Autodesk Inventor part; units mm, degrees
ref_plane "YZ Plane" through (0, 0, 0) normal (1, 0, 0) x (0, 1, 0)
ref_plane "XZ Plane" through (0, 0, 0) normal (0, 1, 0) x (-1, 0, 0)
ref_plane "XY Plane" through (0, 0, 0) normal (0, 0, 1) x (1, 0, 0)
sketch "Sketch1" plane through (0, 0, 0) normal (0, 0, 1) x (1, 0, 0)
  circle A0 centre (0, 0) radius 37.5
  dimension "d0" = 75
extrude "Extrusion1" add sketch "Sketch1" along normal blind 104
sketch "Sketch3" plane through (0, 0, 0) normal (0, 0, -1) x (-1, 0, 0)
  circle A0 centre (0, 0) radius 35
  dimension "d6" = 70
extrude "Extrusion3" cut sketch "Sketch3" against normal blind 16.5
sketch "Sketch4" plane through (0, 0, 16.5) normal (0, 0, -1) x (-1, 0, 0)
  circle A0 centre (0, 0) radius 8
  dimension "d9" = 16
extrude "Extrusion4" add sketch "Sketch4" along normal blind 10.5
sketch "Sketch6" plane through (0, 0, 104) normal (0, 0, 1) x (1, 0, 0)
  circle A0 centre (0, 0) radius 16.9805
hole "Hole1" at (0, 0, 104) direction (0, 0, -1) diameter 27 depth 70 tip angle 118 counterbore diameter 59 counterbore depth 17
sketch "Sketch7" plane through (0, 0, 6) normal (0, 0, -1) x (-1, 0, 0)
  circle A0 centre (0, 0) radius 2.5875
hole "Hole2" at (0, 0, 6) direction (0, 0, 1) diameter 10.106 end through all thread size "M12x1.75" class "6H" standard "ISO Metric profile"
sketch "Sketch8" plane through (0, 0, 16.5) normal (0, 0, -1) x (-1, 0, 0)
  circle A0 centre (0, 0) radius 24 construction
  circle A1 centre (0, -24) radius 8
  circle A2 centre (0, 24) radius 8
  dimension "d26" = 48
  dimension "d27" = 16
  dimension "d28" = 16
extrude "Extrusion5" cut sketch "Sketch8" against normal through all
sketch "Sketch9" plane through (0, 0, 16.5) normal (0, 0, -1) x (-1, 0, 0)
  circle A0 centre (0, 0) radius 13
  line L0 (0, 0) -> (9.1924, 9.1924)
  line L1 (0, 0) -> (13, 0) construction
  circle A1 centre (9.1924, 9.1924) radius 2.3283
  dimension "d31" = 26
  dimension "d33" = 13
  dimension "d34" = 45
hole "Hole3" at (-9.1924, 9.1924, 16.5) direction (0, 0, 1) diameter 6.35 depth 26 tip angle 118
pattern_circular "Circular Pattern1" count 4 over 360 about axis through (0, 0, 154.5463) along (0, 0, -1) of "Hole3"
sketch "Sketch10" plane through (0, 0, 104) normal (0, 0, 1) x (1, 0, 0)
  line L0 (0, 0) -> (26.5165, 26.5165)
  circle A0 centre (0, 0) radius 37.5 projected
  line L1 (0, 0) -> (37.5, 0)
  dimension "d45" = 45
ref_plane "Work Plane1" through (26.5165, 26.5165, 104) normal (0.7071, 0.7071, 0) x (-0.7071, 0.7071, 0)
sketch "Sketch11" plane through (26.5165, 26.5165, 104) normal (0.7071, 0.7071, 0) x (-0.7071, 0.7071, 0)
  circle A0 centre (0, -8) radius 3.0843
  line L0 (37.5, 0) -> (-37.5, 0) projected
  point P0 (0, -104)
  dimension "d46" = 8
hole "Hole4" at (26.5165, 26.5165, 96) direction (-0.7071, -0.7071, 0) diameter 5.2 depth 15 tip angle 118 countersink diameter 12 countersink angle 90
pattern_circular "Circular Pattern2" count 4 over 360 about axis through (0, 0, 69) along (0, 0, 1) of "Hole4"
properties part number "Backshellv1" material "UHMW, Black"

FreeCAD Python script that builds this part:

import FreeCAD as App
import Part
import Sketcher

V = App.Vector

doc = App.newDocument("Part")
params = doc.addObject("Spreadsheet::Sheet", "Params")
for row, (alias, value) in enumerate([
    ("sketch1_diameter", "75 mm"),
    ("pad1_length", "104 mm"),
    ("sketch2_diameter", "70 mm"),
    ("pocket1_length", "16.5 mm"),
    ("sketch3_diameter", "16 mm"),
    ("pad2_length", "10.5 mm"),
    ("sketch4_diameter", "27 mm"),
    ("hole_diameter", "27 mm"),
    ("hole_depth", "70 mm"),
    ("hole_cbore_diameter", "59 mm"),
    ("hole_cbore_depth", "17 mm"),
    ("hole2_diameter", "10.106 mm"),
    ("sketch6_diameter", "16 mm"),
    ("sketch7_diameter", "6.35 mm"),
    ("hole3_diameter", "6.35 mm"),
    ("hole3_depth", "26 mm"),
    ("sketch8_diameter", "5.2 mm"),
    ("hole4_diameter", "5.2 mm"),
    ("hole4_depth", "15 mm"),
    ("hole4_csink_diameter", "12 mm"),
], start=1):
    params.set(f"A{row}", alias)
    params.set(f"B{row}", "=" + value)
    params.setAlias(f"B{row}", alias)

body = doc.addObject("PartDesign::Body", "Body")

# Sketch on XY plane
sketch1 = body.newObject("Sketcher::SketchObject", "Sketch")
sketch1.AttachmentSupport = (doc.getObject("XY_Plane"), [""])
sketch1.MapMode = "FlatFace"
sketch1.addGeometry(Part.Circle(V(0, 0, 0), V(0, 0, 1), 37.5), False)
sketch1.addConstraint(Sketcher.Constraint("Coincident", 0, 3, -1, 1))
sketch1.addConstraint(Sketcher.Constraint("Diameter", 0, 75.0))
sketch1.setExpression("Constraints[1]", "Params.sketch1_diameter")
pad1 = body.newObject("PartDesign::Pad", "Pad")
pad1.Profile = sketch1
pad1.setExpression("Length", "Params.pad1_length")

# Sketch on XY plane
sketch2 = body.newObject("Sketcher::SketchObject", "Sketch001")
sketch2.AttachmentSupport = (doc.getObject("XY_Plane"), [""])
sketch2.MapMode = "FlatFace"
sketch2.addGeometry(Part.Circle(V(0, 0, 0), V(0, 0, 1), 35), False)
sketch2.addConstraint(Sketcher.Constraint("Coincident", 0, 3, -1, 1))
sketch2.addConstraint(Sketcher.Constraint("Diameter", 0, 70.0))
sketch2.setExpression("Constraints[1]", "Params.sketch2_diameter")
pocket1 = body.newObject("PartDesign::Pocket", "Pocket")
pocket1.Profile = sketch2
pocket1.setExpression("Length", "Params.pocket1_length")
pocket1.Reversed = True

# Sketch on XY plane
sketch3 = body.newObject("Sketcher::SketchObject", "Sketch002")
sketch3.AttachmentSupport = (doc.getObject("XY_Plane"), [""])
sketch3.MapMode = "FlatFace"
sketch3.AttachmentOffset = App.Placement(V(0, 0, 16.5), App.Rotation())
sketch3.addGeometry(Part.Circle(V(0, 0, 0), V(0, 0, 1), 8), False)
sketch3.addConstraint(Sketcher.Constraint("Coincident", 0, 3, -1, 1))
sketch3.addConstraint(Sketcher.Constraint("Diameter", 0, 16.0))
sketch3.setExpression("Constraints[1]", "Params.sketch3_diameter")
pad2 = body.newObject("PartDesign::Pad", "Pad001")
pad2.Profile = sketch3
pad2.setExpression("Length", "Params.pad2_length")
pad2.Reversed = True

# Sketch on XY plane
sketch4 = body.newObject("Sketcher::SketchObject", "Sketch003")
sketch4.AttachmentSupport = (doc.getObject("XY_Plane"), [""])
sketch4.MapMode = "FlatFace"
sketch4.AttachmentOffset = App.Placement(V(0, 0, 104), App.Rotation())
sketch4.addGeometry(Part.Circle(V(0, 0, 0), V(0, 0, 1), 13.5), False)
sketch4.addConstraint(Sketcher.Constraint("Coincident", 0, 3, -1, 1))
sketch4.addConstraint(Sketcher.Constraint("Diameter", 0, 27.0))
sketch4.setExpression("Constraints[1]", "Params.sketch4_diameter")
doc.recompute()
hole = body.newObject("PartDesign::Hole", "Hole")
hole.Profile = sketch4
hole.ThreadType = "None"
hole.setExpression("Diameter", "Params.hole_diameter")
hole.DepthType = "Dimension"
hole.setExpression("Depth", "Params.hole_depth")
hole.DrillPoint = "Angled"
hole.DrillPointAngle = 118
hole.HoleCutType = "Counterbore"
hole.setExpression("HoleCutDiameter", "Params.hole_cbore_diameter")
hole.setExpression("HoleCutDepth", "Params.hole_cbore_depth")

# Sketch on XY plane
sketch5 = body.newObject("Sketcher::SketchObject", "Sketch004")
sketch5.AttachmentSupport = (doc.getObject("XY_Plane"), [""])
sketch5.MapMode = "FlatFace"
sketch5.AttachmentOffset = App.Placement(V(0, 0, 6), App.Rotation())
sketch5.addGeometry(Part.Circle(V(0, 0, 0), V(0, 0, 1), 5.053), False)
sketch5.addConstraint(Sketcher.Constraint("Coincident", 0, 3, -1, 1))
sketch5.addConstraint(Sketcher.Constraint("Diameter", 0, 10.106))
doc.recompute()
hole2 = body.newObject("PartDesign::Hole", "Hole001")
hole2.Profile = sketch5
hole2.ThreadType = "None"
hole2.setExpression("Diameter", "Params.hole2_diameter")
hole2.DepthType = "ThroughAll"
hole2.Reversed = True

# Sketch on XY plane
sketch6 = body.newObject("Sketcher::SketchObject", "Sketch005")
sketch6.AttachmentSupport = (doc.getObject("XY_Plane"), [""])
sketch6.MapMode = "FlatFace"
sketch6.AttachmentOffset = App.Placement(V(0, 0, 16.5), App.Rotation())
sketch6.addGeometry(Part.Circle(V(0, -24, 0), V(0, 0, 1), 8), False)
sketch6.addGeometry(Part.Circle(V(0, 24, 0), V(0, 0, 1), 8), False)
sketch6.addConstraint(Sketcher.Constraint("Equal", 0, 1))
sketch6.addConstraint(Sketcher.Constraint("Symmetric", 0, 3, 1, 3, -1, 1))
sketch6.addConstraint(Sketcher.Constraint("PointOnObject", 0, 3, -2))
sketch6.addConstraint(Sketcher.Constraint("Diameter", 0, 16.0))
sketch6.addConstraint(Sketcher.Constraint("DistanceY", 0, 3, 1, 3, 48.0))
sketch6.setExpression("Constraints[3]", "Params.sketch6_diameter")
pocket2 = body.newObject("PartDesign::Pocket", "Pocket001")
pocket2.Profile = sketch6
pocket2.Type = "ThroughAll"
pocket2.Reversed = True

# Sketch on XY plane
sketch7 = body.newObject("Sketcher::SketchObject", "Sketch006")
sketch7.AttachmentSupport = (doc.getObject("XY_Plane"), [""])
sketch7.MapMode = "FlatFace"
sketch7.AttachmentOffset = App.Placement(V(0, 0, 16.5), App.Rotation())
sketch7.addGeometry(Part.Circle(V(-9.1924, 9.1924, 0), V(0, 0, 1), 3.175), False)
sketch7.addConstraint(Sketcher.Constraint("Diameter", 0, 6.35))
sketch7.addConstraint(Sketcher.Constraint("DistanceX", 0, 3, -1, 1, 9.1924))
sketch7.addConstraint(Sketcher.Constraint("DistanceY", -1, 1, 0, 3, 9.1924))
sketch7.setExpression("Constraints[0]", "Params.sketch7_diameter")
doc.recompute()
hole3 = body.newObject("PartDesign::Hole", "Hole002")
hole3.Profile = sketch7
hole3.ThreadType = "None"
hole3.setExpression("Diameter", "Params.hole3_diameter")
hole3.DepthType = "Dimension"
hole3.setExpression("Depth", "Params.hole3_depth")
hole3.DrillPoint = "Angled"
hole3.DrillPointAngle = 118
hole3.Reversed = True
doc.recompute()

polarpattern = body.newObject("PartDesign::PolarPattern", "PolarPattern")
polarpattern.Originals = [hole3]
polarpattern.Axis = (doc.getObject("Z_Axis"), [""])
polarpattern.Angle = 360
polarpattern.Occurrences = 4
body.Tip = polarpattern

# Sketch on an angled plane
sketch8 = body.newObject("Sketcher::SketchObject", "Sketch007")
sketch8.Placement = App.Placement(V(26.5165, 26.5165, 0), App.Rotation(V(-0.707106781, 0.707106781, 0), V(0, 0, 0.999999999), V(0.707106781, 0.707106781, 0), "ZXY"))
sketch8.addGeometry(Part.Circle(V(0, 96, 0), V(0, 0, 1), 2.6), False)
sketch8.addConstraint(Sketcher.Constraint("PointOnObject", 0, 3, -2))
sketch8.addConstraint(Sketcher.Constraint("Diameter", 0, 5.2))
sketch8.addConstraint(Sketcher.Constraint("DistanceY", -1, 1, 0, 3, 96.0))
sketch8.setExpression("Constraints[1]", "Params.sketch8_diameter")
doc.recompute()
hole4 = body.newObject("PartDesign::Hole", "Hole003")
hole4.Profile = sketch8
hole4.ThreadType = "None"
hole4.setExpression("Diameter", "Params.hole4_diameter")
hole4.DepthType = "Dimension"
hole4.setExpression("Depth", "Params.hole4_depth")
hole4.DrillPoint = "Angled"
hole4.DrillPointAngle = 118
hole4.HoleCutType = "Countersink"
hole4.setExpression("HoleCutDiameter", "Params.hole4_csink_diameter")
hole4.HoleCutCountersinkAngle = 90
doc.recompute()

polarpattern2 = body.newObject("PartDesign::PolarPattern", "PolarPattern001")
polarpattern2.Originals = [hole4]
polarpattern2.Axis = (doc.getObject("Z_Axis"), [""])
polarpattern2.Angle = 360
polarpattern2.Occurrences = 4
body.Tip = polarpattern2

doc.recompute()
